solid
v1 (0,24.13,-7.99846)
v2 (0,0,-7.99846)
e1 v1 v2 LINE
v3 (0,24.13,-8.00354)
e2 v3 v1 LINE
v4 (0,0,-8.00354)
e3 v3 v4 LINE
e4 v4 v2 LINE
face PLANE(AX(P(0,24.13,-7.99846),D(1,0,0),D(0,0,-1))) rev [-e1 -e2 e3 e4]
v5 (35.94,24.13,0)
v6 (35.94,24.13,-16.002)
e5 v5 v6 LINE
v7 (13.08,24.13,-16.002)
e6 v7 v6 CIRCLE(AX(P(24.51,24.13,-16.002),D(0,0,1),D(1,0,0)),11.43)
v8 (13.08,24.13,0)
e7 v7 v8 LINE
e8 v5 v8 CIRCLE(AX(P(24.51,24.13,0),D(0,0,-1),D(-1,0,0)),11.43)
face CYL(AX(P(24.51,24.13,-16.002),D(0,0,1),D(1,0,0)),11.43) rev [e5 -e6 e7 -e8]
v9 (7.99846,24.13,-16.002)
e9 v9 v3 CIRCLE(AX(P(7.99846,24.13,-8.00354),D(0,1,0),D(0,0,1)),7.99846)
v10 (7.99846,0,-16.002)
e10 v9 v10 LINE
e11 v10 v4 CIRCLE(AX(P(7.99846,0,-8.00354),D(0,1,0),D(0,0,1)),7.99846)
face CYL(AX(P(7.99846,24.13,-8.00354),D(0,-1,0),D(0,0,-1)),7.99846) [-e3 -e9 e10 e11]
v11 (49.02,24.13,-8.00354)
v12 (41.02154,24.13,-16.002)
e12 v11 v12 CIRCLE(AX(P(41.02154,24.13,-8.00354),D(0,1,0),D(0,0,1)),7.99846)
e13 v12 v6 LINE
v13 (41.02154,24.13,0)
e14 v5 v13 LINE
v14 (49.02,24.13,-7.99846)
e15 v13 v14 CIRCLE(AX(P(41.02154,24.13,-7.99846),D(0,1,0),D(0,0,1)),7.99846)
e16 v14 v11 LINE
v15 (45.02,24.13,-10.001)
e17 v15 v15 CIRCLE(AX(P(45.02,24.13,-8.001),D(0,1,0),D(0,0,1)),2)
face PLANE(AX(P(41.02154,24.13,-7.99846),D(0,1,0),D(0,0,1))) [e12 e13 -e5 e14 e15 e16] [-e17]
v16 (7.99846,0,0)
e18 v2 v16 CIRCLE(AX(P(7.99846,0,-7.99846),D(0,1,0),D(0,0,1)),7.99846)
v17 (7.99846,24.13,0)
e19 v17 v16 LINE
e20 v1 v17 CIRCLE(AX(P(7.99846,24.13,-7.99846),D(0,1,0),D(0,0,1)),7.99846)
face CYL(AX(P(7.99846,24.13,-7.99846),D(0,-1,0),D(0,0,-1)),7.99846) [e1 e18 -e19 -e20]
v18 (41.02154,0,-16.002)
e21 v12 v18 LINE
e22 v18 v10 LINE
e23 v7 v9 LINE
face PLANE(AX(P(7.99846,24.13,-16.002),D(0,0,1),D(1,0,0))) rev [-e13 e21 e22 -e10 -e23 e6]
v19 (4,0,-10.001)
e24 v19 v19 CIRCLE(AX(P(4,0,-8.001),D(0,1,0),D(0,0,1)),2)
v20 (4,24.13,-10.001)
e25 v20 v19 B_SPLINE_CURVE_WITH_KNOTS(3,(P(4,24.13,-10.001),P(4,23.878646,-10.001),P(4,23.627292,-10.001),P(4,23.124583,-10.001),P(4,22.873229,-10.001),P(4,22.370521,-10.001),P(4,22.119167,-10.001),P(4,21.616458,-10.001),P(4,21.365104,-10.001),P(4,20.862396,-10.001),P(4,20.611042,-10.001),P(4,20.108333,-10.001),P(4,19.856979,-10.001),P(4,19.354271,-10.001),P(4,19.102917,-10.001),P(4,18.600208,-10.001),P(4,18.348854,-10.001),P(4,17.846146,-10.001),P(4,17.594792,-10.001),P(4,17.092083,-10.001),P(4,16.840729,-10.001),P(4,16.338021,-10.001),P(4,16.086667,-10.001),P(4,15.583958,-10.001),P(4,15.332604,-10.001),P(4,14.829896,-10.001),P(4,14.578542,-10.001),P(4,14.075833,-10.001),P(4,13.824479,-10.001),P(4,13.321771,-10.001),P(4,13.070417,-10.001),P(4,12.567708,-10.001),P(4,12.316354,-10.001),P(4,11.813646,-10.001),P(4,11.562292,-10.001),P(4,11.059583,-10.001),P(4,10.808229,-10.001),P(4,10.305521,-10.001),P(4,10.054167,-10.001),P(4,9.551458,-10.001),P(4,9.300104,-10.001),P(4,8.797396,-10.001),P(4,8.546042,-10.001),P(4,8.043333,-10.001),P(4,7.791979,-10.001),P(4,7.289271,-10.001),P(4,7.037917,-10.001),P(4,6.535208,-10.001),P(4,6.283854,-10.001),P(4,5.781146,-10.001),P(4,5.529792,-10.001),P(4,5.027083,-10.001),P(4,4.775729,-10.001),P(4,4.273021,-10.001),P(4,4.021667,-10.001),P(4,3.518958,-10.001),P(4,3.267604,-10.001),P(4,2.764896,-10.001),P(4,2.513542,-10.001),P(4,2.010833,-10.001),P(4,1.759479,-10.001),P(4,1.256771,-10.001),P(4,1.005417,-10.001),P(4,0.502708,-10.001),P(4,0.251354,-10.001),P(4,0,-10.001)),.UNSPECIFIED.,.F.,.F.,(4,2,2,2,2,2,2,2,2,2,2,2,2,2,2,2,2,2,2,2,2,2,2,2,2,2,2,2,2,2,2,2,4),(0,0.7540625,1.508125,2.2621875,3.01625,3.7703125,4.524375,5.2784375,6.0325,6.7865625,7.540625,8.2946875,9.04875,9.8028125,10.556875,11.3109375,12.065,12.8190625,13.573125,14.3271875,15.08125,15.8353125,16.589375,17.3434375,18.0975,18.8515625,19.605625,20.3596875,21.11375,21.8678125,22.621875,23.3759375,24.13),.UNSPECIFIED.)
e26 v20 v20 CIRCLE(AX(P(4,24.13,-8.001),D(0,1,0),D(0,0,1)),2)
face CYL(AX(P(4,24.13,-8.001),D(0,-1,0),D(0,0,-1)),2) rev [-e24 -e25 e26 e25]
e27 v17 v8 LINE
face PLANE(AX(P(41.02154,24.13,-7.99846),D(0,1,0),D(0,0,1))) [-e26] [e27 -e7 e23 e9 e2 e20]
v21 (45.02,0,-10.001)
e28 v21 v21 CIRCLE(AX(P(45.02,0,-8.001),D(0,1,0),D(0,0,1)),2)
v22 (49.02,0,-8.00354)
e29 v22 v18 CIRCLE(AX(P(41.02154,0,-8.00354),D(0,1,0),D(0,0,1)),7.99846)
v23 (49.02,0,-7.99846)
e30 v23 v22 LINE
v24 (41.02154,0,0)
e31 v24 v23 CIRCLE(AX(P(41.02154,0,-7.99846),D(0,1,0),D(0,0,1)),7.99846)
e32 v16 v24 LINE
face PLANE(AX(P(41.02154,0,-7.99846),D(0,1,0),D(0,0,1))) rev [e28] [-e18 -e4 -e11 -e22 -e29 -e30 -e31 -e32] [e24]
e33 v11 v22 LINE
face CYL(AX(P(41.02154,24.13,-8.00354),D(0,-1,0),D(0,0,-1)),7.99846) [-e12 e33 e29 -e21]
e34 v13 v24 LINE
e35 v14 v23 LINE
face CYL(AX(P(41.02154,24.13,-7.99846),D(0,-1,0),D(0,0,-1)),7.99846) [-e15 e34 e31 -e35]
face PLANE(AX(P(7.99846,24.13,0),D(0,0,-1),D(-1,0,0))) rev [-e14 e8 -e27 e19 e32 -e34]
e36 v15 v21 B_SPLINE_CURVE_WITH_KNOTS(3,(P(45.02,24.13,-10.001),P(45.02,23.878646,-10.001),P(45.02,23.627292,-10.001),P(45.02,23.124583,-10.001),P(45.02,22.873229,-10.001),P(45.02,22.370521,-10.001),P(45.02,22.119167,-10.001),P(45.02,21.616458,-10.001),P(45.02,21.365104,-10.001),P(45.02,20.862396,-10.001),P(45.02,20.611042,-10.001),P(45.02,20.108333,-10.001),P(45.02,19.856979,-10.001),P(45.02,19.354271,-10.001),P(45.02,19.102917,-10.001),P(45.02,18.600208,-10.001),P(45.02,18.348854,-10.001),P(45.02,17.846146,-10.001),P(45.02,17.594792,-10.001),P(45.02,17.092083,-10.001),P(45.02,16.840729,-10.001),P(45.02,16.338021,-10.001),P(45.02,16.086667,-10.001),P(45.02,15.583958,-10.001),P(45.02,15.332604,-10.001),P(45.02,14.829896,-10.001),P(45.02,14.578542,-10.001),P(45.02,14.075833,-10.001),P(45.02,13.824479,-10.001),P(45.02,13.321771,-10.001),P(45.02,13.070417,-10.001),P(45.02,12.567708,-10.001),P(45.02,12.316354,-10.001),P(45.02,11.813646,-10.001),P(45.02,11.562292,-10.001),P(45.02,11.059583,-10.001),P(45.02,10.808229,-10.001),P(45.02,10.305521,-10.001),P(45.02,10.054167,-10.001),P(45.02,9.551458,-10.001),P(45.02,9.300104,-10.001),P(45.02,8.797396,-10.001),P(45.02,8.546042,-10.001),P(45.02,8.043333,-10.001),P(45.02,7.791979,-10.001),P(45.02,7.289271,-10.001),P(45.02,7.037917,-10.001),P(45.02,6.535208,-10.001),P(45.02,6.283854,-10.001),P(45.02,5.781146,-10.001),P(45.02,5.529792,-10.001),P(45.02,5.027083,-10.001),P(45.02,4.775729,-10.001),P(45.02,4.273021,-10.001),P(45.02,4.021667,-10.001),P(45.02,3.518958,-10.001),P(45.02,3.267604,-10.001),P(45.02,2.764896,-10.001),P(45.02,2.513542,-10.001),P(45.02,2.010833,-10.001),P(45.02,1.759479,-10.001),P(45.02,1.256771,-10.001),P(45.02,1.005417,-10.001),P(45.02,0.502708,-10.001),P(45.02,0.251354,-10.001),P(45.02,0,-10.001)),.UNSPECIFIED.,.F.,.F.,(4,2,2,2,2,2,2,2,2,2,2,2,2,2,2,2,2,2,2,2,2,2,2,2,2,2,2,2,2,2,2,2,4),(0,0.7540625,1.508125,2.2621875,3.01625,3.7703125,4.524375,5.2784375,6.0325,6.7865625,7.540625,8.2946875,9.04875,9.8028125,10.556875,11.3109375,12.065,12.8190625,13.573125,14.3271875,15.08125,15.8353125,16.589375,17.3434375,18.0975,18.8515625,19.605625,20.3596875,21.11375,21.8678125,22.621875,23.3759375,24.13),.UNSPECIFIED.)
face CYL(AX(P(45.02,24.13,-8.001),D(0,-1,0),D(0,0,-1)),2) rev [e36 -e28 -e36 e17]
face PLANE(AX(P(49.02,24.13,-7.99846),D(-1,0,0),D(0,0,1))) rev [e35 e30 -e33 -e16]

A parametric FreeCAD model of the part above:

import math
import FreeCAD as App
import Part
import Sketcher
from FreeCAD import Vector
Q = App.Units.Quantity

doc = App.newDocument("Part")
params = doc.addObject("Spreadsheet::Sheet", "Params")
for row, (alias, value) in enumerate([
    ("pad1_length", "0.95 in"),
    ("sketch2_diameter", "0.9 in"),
], start=1):
    params.set(f"A{row}", alias)
    params.set(f"B{row}", "=" + value)
    params.setAlias(f"B{row}", alias)

body = doc.addObject("PartDesign::Body", "Body")

sketch1 = body.newObject("Sketcher::SketchObject", "Sketch")
sketch1.AttachmentSupport = (doc.getObject("XZ_Plane"), [""])
sketch1.MapMode = "FlatFace"
sketch1.addGeometry(Part.LineSegment(Vector(7.998, 0, 0), Vector(41.022, 0, 0)), False)
sketch1.addGeometry(Part.ArcOfCircle(Part.Circle(Vector(41.022, -7.998, 0), Vector(0, 0, 1), 7.998), math.radians(0), math.radians(90)), False)
sketch1.addGeometry(Part.LineSegment(Vector(49.02, -7.998, 0), Vector(49.02, -8.004, 0)), False)
sketch1.addGeometry(Part.ArcOfCircle(Part.Circle(Vector(41.022, -8.004, 0), Vector(0, 0, 1), 7.998), math.radians(-90), math.radians(0)), False)
sketch1.addGeometry(Part.LineSegment(Vector(41.022, -16.002, 0), Vector(7.998, -16.002, 0)), False)
sketch1.addGeometry(Part.ArcOfCircle(Part.Circle(Vector(7.998, -8.004, 0), Vector(0, 0, 1), 7.998), math.radians(180), math.radians(270)), False)
sketch1.addGeometry(Part.LineSegment(Vector(0, -8.004, 0), Vector(0, -7.998, 0)), False)
sketch1.addGeometry(Part.ArcOfCircle(Part.Circle(Vector(7.998, -7.998, 0), Vector(0, 0, 1), 7.998), math.radians(90), math.radians(180)), False)
sketch1.addGeometry(Part.Circle(Vector(4, -8.001, 0), Vector(0, 0, 1), 2), False)
sketch1.addGeometry(Part.Circle(Vector(45.02, -8.001, 0), Vector(0, 0, 1), 2), False)
sketch1.addConstraint(Sketcher.Constraint("Tangent", 0, 2, 1, 2))
sketch1.addConstraint(Sketcher.Constraint("Tangent", 1, 1, 2, 1))
sketch1.addConstraint(Sketcher.Constraint("Coincident", 2, 2, 3, 2))
sketch1.addConstraint(Sketcher.Constraint("Tangent", 3, 1, 4, 1))
sketch1.addConstraint(Sketcher.Constraint("Tangent", 4, 2, 5, 2))
sketch1.addConstraint(Sketcher.Constraint("Tangent", 5, 1, 6, 1))
sketch1.addConstraint(Sketcher.Constraint("Coincident", 6, 2, 7, 2))
sketch1.addConstraint(Sketcher.Constraint("Tangent", 7, 1, 0, 1))
sketch1.addConstraint(Sketcher.Constraint("Horizontal", 0))
sketch1.addConstraint(Sketcher.Constraint("Horizontal", 4))
sketch1.addConstraint(Sketcher.Constraint("Equal", 1, 3))
sketch1.addConstraint(Sketcher.Constraint("Equal", 3, 5))
sketch1.addConstraint(Sketcher.Constraint("Equal", 5, 7))
sketch1.addConstraint(Sketcher.Constraint("Equal", 8, 9))
sketch1.addConstraint(Sketcher.Constraint("PointOnObject", 0, 2, -1))
sketch1.addConstraint(Sketcher.Constraint("PointOnObject", 5, 1, -2))
sketch1.addConstraint(Sketcher.Constraint("Horizontal", 8, 3, 9, 3))
sketch1.addConstraint(Sketcher.Constraint("Horizontal", 7, 3, 1, 1))
sketch1.addConstraint(Sketcher.Constraint("Horizontal", 5, 3, 2, 2))
sketch1.addConstraint(Sketcher.Constraint("Horizontal", 2, 2, 5, 1))
sketch1.addConstraint(Sketcher.Constraint("Horizontal", 1, 1, 6, 2))
sketch1.addConstraint(Sketcher.Constraint("Radius", 1, Q("0.3149 in")))
sketch1.addConstraint(Sketcher.Constraint("Diameter", 8, 4.0))
sketch1.addConstraint(Sketcher.Constraint("DistanceY", 3, 1, -1, 1, Q("0.63 in")))
sketch1.addConstraint(Sketcher.Constraint("DistanceY", 8, 3, -1, 1, Q("0.315 in")))
sketch1.addConstraint(Sketcher.Constraint("DistanceX", 0, 1, 0, 2, 33.02308))
sketch1.addConstraint(Sketcher.Constraint("DistanceX", -1, 1, 8, 3, 4.0))
sketch1.addConstraint(Sketcher.Constraint("DistanceX", -1, 1, 9, 3, 45.02))
pad1 = body.newObject("PartDesign::Pad", "Pad")
pad1.Profile = sketch1
pad1.setExpression("Length", "Params.pad1_length")
pad1.Reversed = True

sketch2 = body.newObject("Sketcher::SketchObject", "Sketch001")
sketch2.AttachmentSupport = (doc.getObject("XY_Plane"), [""])
sketch2.MapMode = "FlatFace"
sketch2.addGeometry(Part.Circle(Vector(25, 24, 0), Vector(0, 0, 1), 11), False)
sketch2.addConstraint(Sketcher.Constraint("Diameter", 0, Q("0.9 in")))
sketch2.addConstraint(Sketcher.Constraint("DistanceY", -1, 1, 0, 3, Q("0.95 in")))
sketch2.addConstraint(Sketcher.Constraint("DistanceX", -1, 1, 0, 3, 24.51))
sketch2.setExpression("Constraints[0]", "Params.sketch2_diameter")
pocket1 = body.newObject("PartDesign::Pocket", "Pocket")
pocket1.Profile = sketch2
pocket1.Type = "ThroughAll"

doc.recompute()
